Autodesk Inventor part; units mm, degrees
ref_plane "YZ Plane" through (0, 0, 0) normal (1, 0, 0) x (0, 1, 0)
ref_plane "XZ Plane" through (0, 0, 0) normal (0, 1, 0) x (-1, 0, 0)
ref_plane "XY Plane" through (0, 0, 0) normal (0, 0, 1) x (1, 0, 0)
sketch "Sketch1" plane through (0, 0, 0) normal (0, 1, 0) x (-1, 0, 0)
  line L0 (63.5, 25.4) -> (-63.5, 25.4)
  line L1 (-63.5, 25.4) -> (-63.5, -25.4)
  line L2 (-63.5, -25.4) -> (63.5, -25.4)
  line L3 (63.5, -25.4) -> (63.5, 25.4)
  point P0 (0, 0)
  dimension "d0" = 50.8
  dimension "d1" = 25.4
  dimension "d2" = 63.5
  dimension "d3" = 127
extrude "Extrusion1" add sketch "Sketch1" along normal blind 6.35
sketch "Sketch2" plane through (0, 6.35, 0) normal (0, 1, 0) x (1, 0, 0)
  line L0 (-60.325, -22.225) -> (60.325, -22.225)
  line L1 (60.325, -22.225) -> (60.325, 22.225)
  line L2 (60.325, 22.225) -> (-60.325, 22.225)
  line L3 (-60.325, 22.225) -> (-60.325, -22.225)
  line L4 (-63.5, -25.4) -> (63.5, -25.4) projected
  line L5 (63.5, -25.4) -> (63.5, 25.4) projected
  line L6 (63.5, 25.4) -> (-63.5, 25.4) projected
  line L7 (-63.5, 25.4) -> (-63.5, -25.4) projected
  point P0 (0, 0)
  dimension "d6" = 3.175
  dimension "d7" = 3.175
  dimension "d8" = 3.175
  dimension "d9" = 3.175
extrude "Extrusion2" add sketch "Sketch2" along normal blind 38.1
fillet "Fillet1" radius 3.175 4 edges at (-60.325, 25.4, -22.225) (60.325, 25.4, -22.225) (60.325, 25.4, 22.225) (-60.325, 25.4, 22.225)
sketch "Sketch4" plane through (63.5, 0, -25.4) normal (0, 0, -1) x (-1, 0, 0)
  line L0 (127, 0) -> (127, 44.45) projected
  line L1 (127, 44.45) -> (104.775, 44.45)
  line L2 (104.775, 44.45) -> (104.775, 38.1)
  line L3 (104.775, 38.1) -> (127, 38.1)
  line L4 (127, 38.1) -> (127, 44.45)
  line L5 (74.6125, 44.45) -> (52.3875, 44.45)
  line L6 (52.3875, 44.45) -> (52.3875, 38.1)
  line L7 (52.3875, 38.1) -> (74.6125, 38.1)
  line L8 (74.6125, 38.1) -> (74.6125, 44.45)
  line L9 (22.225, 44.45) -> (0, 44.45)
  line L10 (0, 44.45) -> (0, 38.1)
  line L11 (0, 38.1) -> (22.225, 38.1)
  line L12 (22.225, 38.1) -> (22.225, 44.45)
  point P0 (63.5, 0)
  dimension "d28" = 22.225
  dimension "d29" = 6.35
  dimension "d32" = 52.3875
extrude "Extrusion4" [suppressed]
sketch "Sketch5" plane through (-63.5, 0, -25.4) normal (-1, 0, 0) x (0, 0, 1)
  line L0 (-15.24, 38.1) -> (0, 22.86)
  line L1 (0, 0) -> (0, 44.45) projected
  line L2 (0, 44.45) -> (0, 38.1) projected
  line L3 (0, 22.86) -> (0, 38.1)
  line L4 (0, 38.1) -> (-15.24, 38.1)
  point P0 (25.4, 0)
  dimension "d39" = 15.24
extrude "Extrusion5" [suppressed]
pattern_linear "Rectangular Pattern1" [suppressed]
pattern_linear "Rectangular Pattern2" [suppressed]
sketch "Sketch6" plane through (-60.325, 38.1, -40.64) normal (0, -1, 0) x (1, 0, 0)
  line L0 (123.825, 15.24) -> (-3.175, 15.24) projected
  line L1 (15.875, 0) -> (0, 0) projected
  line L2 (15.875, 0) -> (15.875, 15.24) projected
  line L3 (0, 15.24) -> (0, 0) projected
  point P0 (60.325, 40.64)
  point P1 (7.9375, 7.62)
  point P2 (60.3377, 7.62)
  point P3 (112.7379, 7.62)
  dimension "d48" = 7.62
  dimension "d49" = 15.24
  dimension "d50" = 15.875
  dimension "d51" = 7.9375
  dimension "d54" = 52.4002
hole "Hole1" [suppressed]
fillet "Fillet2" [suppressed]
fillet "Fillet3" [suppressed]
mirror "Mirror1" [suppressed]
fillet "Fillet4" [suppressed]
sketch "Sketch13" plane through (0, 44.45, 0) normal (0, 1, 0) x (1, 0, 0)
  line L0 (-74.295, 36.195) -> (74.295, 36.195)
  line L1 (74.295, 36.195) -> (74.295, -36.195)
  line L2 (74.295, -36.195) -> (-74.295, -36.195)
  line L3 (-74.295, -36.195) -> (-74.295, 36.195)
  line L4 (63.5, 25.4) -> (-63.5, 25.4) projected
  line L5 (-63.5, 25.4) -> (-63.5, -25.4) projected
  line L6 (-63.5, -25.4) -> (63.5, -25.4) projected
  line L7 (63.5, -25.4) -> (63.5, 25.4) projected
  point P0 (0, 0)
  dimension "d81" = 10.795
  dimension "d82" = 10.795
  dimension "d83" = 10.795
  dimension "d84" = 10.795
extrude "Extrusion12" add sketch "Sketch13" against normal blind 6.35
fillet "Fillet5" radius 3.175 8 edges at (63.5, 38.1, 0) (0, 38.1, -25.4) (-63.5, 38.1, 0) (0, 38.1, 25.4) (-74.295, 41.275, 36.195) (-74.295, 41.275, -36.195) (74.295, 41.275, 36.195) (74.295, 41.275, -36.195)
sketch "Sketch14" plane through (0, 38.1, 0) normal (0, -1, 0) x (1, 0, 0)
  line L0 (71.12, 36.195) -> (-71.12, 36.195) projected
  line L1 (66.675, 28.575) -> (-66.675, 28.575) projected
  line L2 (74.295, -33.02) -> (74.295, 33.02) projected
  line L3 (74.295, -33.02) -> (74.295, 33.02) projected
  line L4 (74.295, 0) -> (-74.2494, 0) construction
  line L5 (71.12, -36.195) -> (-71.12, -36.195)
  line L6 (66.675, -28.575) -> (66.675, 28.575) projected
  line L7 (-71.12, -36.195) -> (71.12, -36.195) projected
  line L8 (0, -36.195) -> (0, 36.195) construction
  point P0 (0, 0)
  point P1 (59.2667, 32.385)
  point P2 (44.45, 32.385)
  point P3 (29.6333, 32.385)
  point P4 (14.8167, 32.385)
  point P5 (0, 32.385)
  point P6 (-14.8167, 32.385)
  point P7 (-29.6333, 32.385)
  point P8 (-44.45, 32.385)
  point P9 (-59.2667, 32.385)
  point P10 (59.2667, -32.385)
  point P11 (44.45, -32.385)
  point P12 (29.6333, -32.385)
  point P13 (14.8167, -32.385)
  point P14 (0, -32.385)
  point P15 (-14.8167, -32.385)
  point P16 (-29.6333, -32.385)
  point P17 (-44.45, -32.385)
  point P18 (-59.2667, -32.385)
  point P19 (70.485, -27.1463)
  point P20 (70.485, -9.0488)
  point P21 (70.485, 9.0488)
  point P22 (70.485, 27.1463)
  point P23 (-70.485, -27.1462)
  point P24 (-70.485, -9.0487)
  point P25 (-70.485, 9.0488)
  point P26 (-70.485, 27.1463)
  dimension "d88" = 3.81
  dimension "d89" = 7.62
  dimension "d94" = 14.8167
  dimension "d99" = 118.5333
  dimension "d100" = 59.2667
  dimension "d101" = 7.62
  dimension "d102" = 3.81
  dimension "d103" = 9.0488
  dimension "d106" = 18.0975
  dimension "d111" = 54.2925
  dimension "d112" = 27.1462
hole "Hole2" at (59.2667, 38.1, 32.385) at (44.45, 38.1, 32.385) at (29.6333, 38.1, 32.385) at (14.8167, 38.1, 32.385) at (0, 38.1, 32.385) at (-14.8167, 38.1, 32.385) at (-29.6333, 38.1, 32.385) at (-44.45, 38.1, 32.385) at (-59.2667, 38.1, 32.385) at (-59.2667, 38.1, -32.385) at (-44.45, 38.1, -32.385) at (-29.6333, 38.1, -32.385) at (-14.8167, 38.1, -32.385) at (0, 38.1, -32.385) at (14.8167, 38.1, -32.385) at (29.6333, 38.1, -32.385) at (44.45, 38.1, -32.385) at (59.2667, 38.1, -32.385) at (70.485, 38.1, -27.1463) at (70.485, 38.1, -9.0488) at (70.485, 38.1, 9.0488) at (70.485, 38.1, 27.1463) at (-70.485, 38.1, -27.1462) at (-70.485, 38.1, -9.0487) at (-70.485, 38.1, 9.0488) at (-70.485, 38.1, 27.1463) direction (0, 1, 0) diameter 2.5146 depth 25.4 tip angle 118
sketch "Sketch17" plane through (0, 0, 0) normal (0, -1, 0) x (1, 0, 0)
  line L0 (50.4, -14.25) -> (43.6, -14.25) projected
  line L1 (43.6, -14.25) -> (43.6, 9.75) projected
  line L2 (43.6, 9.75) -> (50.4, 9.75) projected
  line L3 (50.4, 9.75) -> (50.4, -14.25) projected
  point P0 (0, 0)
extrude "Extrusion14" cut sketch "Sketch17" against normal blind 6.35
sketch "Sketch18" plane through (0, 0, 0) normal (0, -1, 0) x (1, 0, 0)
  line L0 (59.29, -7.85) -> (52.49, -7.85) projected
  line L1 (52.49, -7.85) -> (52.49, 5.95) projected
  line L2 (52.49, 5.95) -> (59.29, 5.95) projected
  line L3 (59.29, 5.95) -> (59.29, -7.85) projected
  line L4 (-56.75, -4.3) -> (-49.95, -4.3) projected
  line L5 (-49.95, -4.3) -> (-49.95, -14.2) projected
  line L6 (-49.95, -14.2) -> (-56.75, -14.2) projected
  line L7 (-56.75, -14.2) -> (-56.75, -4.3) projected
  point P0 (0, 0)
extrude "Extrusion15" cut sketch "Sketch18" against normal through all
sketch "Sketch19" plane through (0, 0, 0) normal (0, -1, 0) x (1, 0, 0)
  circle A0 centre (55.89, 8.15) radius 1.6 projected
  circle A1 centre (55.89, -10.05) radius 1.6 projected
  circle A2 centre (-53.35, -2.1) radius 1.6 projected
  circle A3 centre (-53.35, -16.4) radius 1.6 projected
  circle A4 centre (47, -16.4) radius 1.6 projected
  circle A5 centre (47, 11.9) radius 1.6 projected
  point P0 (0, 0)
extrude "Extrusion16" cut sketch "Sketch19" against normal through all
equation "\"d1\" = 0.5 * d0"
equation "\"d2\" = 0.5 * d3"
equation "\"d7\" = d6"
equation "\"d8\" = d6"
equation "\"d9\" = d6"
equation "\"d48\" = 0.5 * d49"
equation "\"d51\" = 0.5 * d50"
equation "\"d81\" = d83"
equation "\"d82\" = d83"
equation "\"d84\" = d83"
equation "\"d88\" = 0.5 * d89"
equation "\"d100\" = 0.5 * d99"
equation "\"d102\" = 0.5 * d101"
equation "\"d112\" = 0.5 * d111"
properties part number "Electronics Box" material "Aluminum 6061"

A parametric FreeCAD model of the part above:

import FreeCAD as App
import Part
import Sketcher
Q = App.Units.Quantity


def edges_at(feature, points):
    """Names of the edges that pass closest to the given points."""
    edges = feature.Shape.Edges
    near = lambda p: min(range(len(edges)), key=lambda i: edges[i].distToShape(Part.Vertex(*p))[0])
    return sorted({f"Edge{near(p) + 1}" for p in points})


def add_polygon(sketch, points):
    """Adds a closed chain of lines whose ends are joined by coincident constraints."""
    first, n = sketch.GeometryCount, len(points)
    for a, b in zip(points, points[1:] + points[:1]):
        sketch.addGeometry(Part.LineSegment(App.Vector(*a, 0), App.Vector(*b, 0)), False)
    for i in range(n):
        sketch.addConstraint(Sketcher.Constraint("Coincident", first + i, 2, first + (i + 1) % n, 1))

doc = App.newDocument("Part")
body = doc.addObject("PartDesign::Body", "Body")

# Sketch on XZ plane
sketch1 = body.newObject("Sketcher::SketchObject", "Sketch")
sketch1.AttachmentSupport = (doc.getObject("XZ_Plane"), [""])
sketch1.MapMode = "FlatFace"
add_polygon(sketch1, [(-64, -25), (-64, 25), (64, 25), (64, -25)])  # lines 0-3
sketch1.addConstraint([
    Sketcher.Constraint("Vertical", 0),
    Sketcher.Constraint("Horizontal", 1),
    Sketcher.Constraint("Vertical", 2),
    Sketcher.Constraint("Horizontal", 3),
    Sketcher.Constraint("Symmetric", 0, 2, 2, 2, -1, 1),
    Sketcher.Constraint("DistanceX", 1, 1, 1, 2, Q("5 in")),
    Sketcher.Constraint("DistanceY", 0, 1, 0, 2, Q("2 in")),
])
pad1 = body.newObject("PartDesign::Pad", "Pad")
pad1.Profile = sketch1
pad1.Length = Q("0.25 in")
pad1.Reversed = True

# Sketch on XZ plane
sketch2 = body.newObject("Sketcher::SketchObject", "Sketch001")
sketch2.AttachmentSupport = (doc.getObject("XZ_Plane"), [""])
sketch2.MapMode = "FlatFace"
sketch2.AttachmentOffset = App.Placement(App.Vector(0, 0, -0.25 * 25.4), App.Rotation())
add_polygon(sketch2, [(-64, -25), (-64, 25), (64, 25), (64, -25)])  # lines 0-3
add_polygon(sketch2, [(60, 22), (-60, 22), (-60, -22), (60, -22)])  # lines 4-7
sketch2.addConstraint([
    Sketcher.Constraint("Vertical", 0),
    Sketcher.Constraint("Horizontal", 1),
    Sketcher.Constraint("Vertical", 2),
    Sketcher.Constraint("Horizontal", 3),
    Sketcher.Constraint("Horizontal", 4),
    Sketcher.Constraint("Vertical", 5),
    Sketcher.Constraint("Horizontal", 6),
    Sketcher.Constraint("Vertical", 7),
    Sketcher.Constraint("Symmetric", 0, 2, 2, 2, -1, 1),
    Sketcher.Constraint("Symmetric", 4, 2, 6, 2, -1, 1),
    Sketcher.Constraint("DistanceX", 1, 1, 1, 2, Q("5 in")),
    Sketcher.Constraint("DistanceY", 0, 1, 0, 2, Q("2 in")),
    Sketcher.Constraint("DistanceX", 0, 2, 4, 2, Q("0.125 in")),
    Sketcher.Constraint("DistanceY", 4, 2, 0, 2, Q("0.125 in")),
])
pad2 = body.newObject("PartDesign::Pad", "Pad001")
pad2.Profile = sketch2
pad2.Length = Q("1.5 in")
pad2.Reversed = True
doc.recompute()

fillet = body.newObject("PartDesign::Fillet", "Fillet")
fillet.Base = (pad2, edges_at(pad2, [
    (-60.325, 25.4, -22.225),
    (60.325, 25.4, -22.225),
    (60.325, 25.4, 22.225),
    (-60.325, 25.4, 22.225),
]))
fillet.Radius = Q("0.125 in")

# Sketch on XZ plane
sketch3 = body.newObject("Sketcher::SketchObject", "Sketch002")
sketch3.AttachmentSupport = (doc.getObject("XZ_Plane"), [""])
sketch3.MapMode = "FlatFace"
sketch3.AttachmentOffset = App.Placement(App.Vector(0, 0, -1.75 * 25.4), App.Rotation())
add_polygon(sketch3, [(74, -36), (-74, -36), (-74, 36), (74, 36)])  # lines 0-3
add_polygon(sketch3, [(-64, -25), (64, -25), (64, 25), (-64, 25)])  # lines 4-7
sketch3.addConstraint([
    Sketcher.Constraint("Horizontal", 0),
    Sketcher.Constraint("Vertical", 1),
    Sketcher.Constraint("Horizontal", 2),
    Sketcher.Constraint("Vertical", 3),
    Sketcher.Constraint("Horizontal", 4),
    Sketcher.Constraint("Vertical", 5),
    Sketcher.Constraint("Horizontal", 6),
    Sketcher.Constraint("Vertical", 7),
    Sketcher.Constraint("Symmetric", 0, 2, 2, 2, -1, 1),
    Sketcher.Constraint("Symmetric", 4, 2, 6, 2, -1, 1),
    Sketcher.Constraint("DistanceX", 4, 1, 4, 2, Q("5 in")),
    Sketcher.Constraint("DistanceY", 5, 1, 5, 2, Q("2 in")),
    Sketcher.Constraint("DistanceX", 4, 2, 3, 2, Q("0.425 in")),
    Sketcher.Constraint("DistanceY", 3, 2, 4, 2, Q("0.425 in")),
])
pad3 = body.newObject("PartDesign::Pad", "Pad002")
pad3.Profile = sketch3
pad3.Length = Q("0.25 in")
doc.recompute()

fillet2 = body.newObject("PartDesign::Fillet", "Fillet001")
fillet2.Base = (pad3, edges_at(pad3, [
    (63.5, 38.1, 0),
    (0, 38.1, -25.4),
    (-63.5, 38.1, 0),
    (0, 38.1, 25.4),
    (-74.295, 41.275, 36.195),
    (-74.295, 41.275, -36.195),
    (74.295, 41.275, 36.195),
    (74.295, 41.275, -36.195),
]))
fillet2.Radius = Q("0.125 in")

# Sketch on XZ plane
sketch4 = body.newObject("Sketcher::SketchObject", "Sketch003")
sketch4.AttachmentSupport = (doc.getObject("XZ_Plane"), [""])
sketch4.MapMode = "FlatFace"
sketch4.AttachmentOffset = App.Placement(App.Vector(0, 0, -1.5 * 25.4), App.Rotation())
sketch4.addGeometry([
    Part.Circle(App.Vector(59.3, 32.4, 0), App.Vector(0, 0, 1), 1.3),  # 0
    Part.Circle(App.Vector(44.5, 32.4, 0), App.Vector(0, 0, 1), 1.3),  # 1
    Part.Circle(App.Vector(29.6, 32.4, 0), App.Vector(0, 0, 1), 1.3),  # 2
    Part.Circle(App.Vector(14.8, 32.4, 0), App.Vector(0, 0, 1), 1.3),  # 3
    Part.Circle(App.Vector(0, 32.4, 0), App.Vector(0, 0, 1), 1.3),  # 4
    Part.Circle(App.Vector(-14.8, 32.4, 0), App.Vector(0, 0, 1), 1.3),  # 5
    Part.Circle(App.Vector(-29.6, 32.4, 0), App.Vector(0, 0, 1), 1.3),  # 6
    Part.Circle(App.Vector(-44.5, 32.4, 0), App.Vector(0, 0, 1), 1.3),  # 7
    Part.Circle(App.Vector(-59.3, 32.4, 0), App.Vector(0, 0, 1), 1.3),  # 8
    Part.Circle(App.Vector(-59.3, -32.4, 0), App.Vector(0, 0, 1), 1.3),  # 9
    Part.Circle(App.Vector(-44.5, -32.4, 0), App.Vector(0, 0, 1), 1.3),  # 10
    Part.Circle(App.Vector(-29.6, -32.4, 0), App.Vector(0, 0, 1), 1.3),  # 11
    Part.Circle(App.Vector(-14.8, -32.4, 0), App.Vector(0, 0, 1), 1.3),  # 12
    Part.Circle(App.Vector(0, -32.4, 0), App.Vector(0, 0, 1), 1.3),  # 13
    Part.Circle(App.Vector(14.8, -32.4, 0), App.Vector(0, 0, 1), 1.3),  # 14
    Part.Circle(App.Vector(29.6, -32.4, 0), App.Vector(0, 0, 1), 1.3),  # 15
    Part.Circle(App.Vector(44.5, -32.4, 0), App.Vector(0, 0, 1), 1.3),  # 16
    Part.Circle(App.Vector(59.3, -32.4, 0), App.Vector(0, 0, 1), 1.3),  # 17
    Part.Circle(App.Vector(70.5, -27.1, 0), App.Vector(0, 0, 1), 1.3),  # 18
    Part.Circle(App.Vector(70.5, -9, 0), App.Vector(0, 0, 1), 1.3),  # 19
    Part.Circle(App.Vector(70.5, 9, 0), App.Vector(0, 0, 1), 1.3),  # 20
    Part.Circle(App.Vector(70.5, 27.1, 0), App.Vector(0, 0, 1), 1.3),  # 21
    Part.Circle(App.Vector(-70.5, -27.1, 0), App.Vector(0, 0, 1), 1.3),  # 22
    Part.Circle(App.Vector(-70.5, -9, 0), App.Vector(0, 0, 1), 1.3),  # 23
    Part.Circle(App.Vector(-70.5, 9, 0), App.Vector(0, 0, 1), 1.3),  # 24
    Part.Circle(App.Vector(-70.5, 27.1, 0), App.Vector(0, 0, 1), 1.3),  # 25
], False)
sketch4.addConstraint([
    Sketcher.Constraint("Equal", 0, 1),
    Sketcher.Constraint("Equal", 1, 2),
    Sketcher.Constraint("Equal", 2, 3),
    Sketcher.Constraint("Equal", 3, 4),
    Sketcher.Constraint("Equal", 4, 5),
    Sketcher.Constraint("Equal", 5, 6),
    Sketcher.Constraint("Equal", 6, 7),
    Sketcher.Constraint("Equal", 7, 8),
    Sketcher.Constraint("Equal", 8, 9),
    Sketcher.Constraint("Equal", 9, 10),
    Sketcher.Constraint("Equal", 10, 11),
    Sketcher.Constraint("Equal", 11, 12),
    Sketcher.Constraint("Equal", 12, 13),
    Sketcher.Constraint("Equal", 13, 14),
    Sketcher.Constraint("Equal", 14, 15),
    Sketcher.Constraint("Equal", 15, 16),
    Sketcher.Constraint("Equal", 16, 17),
    Sketcher.Constraint("Equal", 17, 18),
    Sketcher.Constraint("Equal", 18, 19),
    Sketcher.Constraint("Equal", 19, 20),
    Sketcher.Constraint("Equal", 20, 21),
    Sketcher.Constraint("Equal", 21, 22),
    Sketcher.Constraint("Equal", 22, 23),
    Sketcher.Constraint("Equal", 23, 24),
    Sketcher.Constraint("Equal", 24, 25),
    Sketcher.Constraint("Symmetric", 0, 3, 9, 3, -1, 1),
    Sketcher.Constraint("Symmetric", 1, 3, 10, 3, -1, 1),
    Sketcher.Constraint("Symmetric", 2, 3, 11, 3, -1, 1),
    Sketcher.Constraint("Symmetric", 3, 3, 12, 3, -1, 1),
    Sketcher.Constraint("Symmetric", 4, 3, 13, 3, -1, 1),
    Sketcher.Constraint("Symmetric", 5, 3, 14, 3, -1, 1),
    Sketcher.Constraint("Symmetric", 6, 3, 15, 3, -1, 1),
    Sketcher.Constraint("Symmetric", 7, 3, 16, 3, -1, 1),
    Sketcher.Constraint("Symmetric", 8, 3, 17, 3, -1, 1),
    Sketcher.Constraint("Symmetric", 21, 3, 22, 3, -1, 1),
    Sketcher.Constraint("Symmetric", 20, 3, 23, 3, -1, 1),
    Sketcher.Constraint("Symmetric", 19, 3, 24, 3, -1, 1),
    Sketcher.Constraint("Symmetric", 18, 3, 25, 3, -1, 1),
    Sketcher.Constraint("Symmetric", 3, 3, 5, 3, -2),
    Sketcher.Constraint("Symmetric", 2, 3, 6, 3, -2),
    Sketcher.Constraint("Symmetric", 1, 3, 7, 3, -2),
    Sketcher.Constraint("Symmetric", 0, 3, 8, 3, -2),
    Sketcher.Constraint("Symmetric", 18, 3, 22, 3, -2),
    Sketcher.Constraint("Symmetric", 19, 3, 23, 3, -2),
    Sketcher.Constraint("PointOnObject", 4, 3, -2),
    Sketcher.Constraint("Horizontal", 0, 3, 1, 3),
    Sketcher.Constraint("Horizontal", 1, 3, 2, 3),
    Sketcher.Constraint("Horizontal", 2, 3, 3, 3),
    Sketcher.Constraint("Horizontal", 3, 3, 4, 3),
    Sketcher.Constraint("Vertical", 18, 3, 19, 3),
    Sketcher.Constraint("Diameter", 0, Q("0.099 in")),
    Sketcher.Constraint("DistanceX", -1, 1, 1, 3, Q("1.75 in")),
    Sketcher.Constraint("DistanceX", 3, 3, 0, 3, Q("1.75 in")),
    Sketcher.Constraint("DistanceX", 5, 3, 2, 3, Q("1.75 in")),
    Sketcher.Constraint("DistanceY", 9, 3, 8, 3, Q("2.55 in")),
    Sketcher.Constraint("DistanceX", -1, 1, 18, 3, Q("2.775 in")),
    Sketcher.Constraint("DistanceY", 18, 3, 0, 3, Q("2.343752 in")),
    Sketcher.Constraint("DistanceY", 18, 3, 20, 3, Q("1.425 in")),
    Sketcher.Constraint("DistanceX", -1, 1, 0, 3, 59.2667),
])
doc.recompute()
hole = body.newObject("PartDesign::Hole", "Hole")
hole.Profile = sketch4
hole.ThreadType = "None"
hole.Diameter = Q("0.099 in")
hole.DepthType = "Dimension"
hole.Depth = Q("1 in")
hole.DrillPoint = "Angled"
hole.DrillPointAngle = 118

# Sketch on XZ plane
sketch5 = body.newObject("Sketcher::SketchObject", "Sketch004")
sketch5.AttachmentSupport = (doc.getObject("XZ_Plane"), [""])
sketch5.MapMode = "FlatFace"
add_polygon(sketch5, [(44, -14), (50, -14), (50, 10), (44, 10)])  # lines 0-3
sketch5.addConstraint([
    Sketcher.Constraint("Horizontal", 0),
    Sketcher.Constraint("Vertical", 1),
    Sketcher.Constraint("Horizontal", 2),
    Sketcher.Constraint("Vertical", 3),
    Sketcher.Constraint("DistanceX", 0, 1, 0, 2, 6.8),
    Sketcher.Constraint("DistanceY", 1, 1, 1, 2, 24.0),
    Sketcher.Constraint("DistanceX", -1, 1, 0, 2, 50.4),
    Sketcher.Constraint("DistanceY", 0, 2, -1, 1, 14.25),
])
pocket1 = body.newObject("PartDesign::Pocket", "Pocket")
pocket1.Profile = sketch5
pocket1.Length = Q("0.25 in")

# Sketch on XZ plane
sketch6 = body.newObject("Sketcher::SketchObject", "Sketch005")
sketch6.AttachmentSupport = (doc.getObject("XZ_Plane"), [""])
sketch6.MapMode = "FlatFace"
add_polygon(sketch6, [(52, -8), (59, -8), (59, 6), (52, 6)])  # lines 0-3
add_polygon(sketch6, [(-50, -4), (-57, -4), (-57, -14), (-50, -14)])  # lines 4-7
sketch6.addConstraint([
    Sketcher.Constraint("Horizontal", 0),
    Sketcher.Constraint("Vertical", 1),
    Sketcher.Constraint("Horizontal", 2),
    Sketcher.Constraint("Vertical", 3),
    Sketcher.Constraint("Horizontal", 4),
    Sketcher.Constraint("Vertical", 5),
    Sketcher.Constraint("Horizontal", 6),
    Sketcher.Constraint("Vertical", 7),
    Sketcher.Constraint("Equal", 2, 4),
    Sketcher.Constraint("DistanceY", 5, 2, 3, 2, Q("0.25 in")),
    Sketcher.Constraint("DistanceY", 1, 1, 1, 2, Q("0.5433 in")),
    Sketcher.Constraint("DistanceX", 0, 1, 0, 2, 6.8),
    Sketcher.Constraint("DistanceY", 5, 2, 5, 1, 9.9),
    Sketcher.Constraint("DistanceY", 4, 2, -1, 1, Q("0.1693 in")),
    Sketcher.Constraint("DistanceX", 4, 2, 0, 2, Q("4.5685 in")),
    Sketcher.Constraint("DistanceX", -1, 1, 0, 2, 59.29),
])
pocket2 = body.newObject("PartDesign::Pocket", "Pocket001")
pocket2.Profile = sketch6
pocket2.Type = "ThroughAll"

# Sketch on XZ plane
sketch7 = body.newObject("Sketcher::SketchObject", "Sketch006")
sketch7.AttachmentSupport = (doc.getObject("XZ_Plane"), [""])
sketch7.MapMode = "FlatFace"
sketch7.addGeometry([
    Part.Circle(App.Vector(55.9, 8.2, 0), App.Vector(0, 0, 1), 1.6),  # 0
    Part.Circle(App.Vector(55.9, -10.1, 0), App.Vector(0, 0, 1), 1.6),  # 1
    Part.Circle(App.Vector(-53.4, -2.1, 0), App.Vector(0, 0, 1), 1.6),  # 2
    Part.Circle(App.Vector(-53.4, -16.4, 0), App.Vector(0, 0, 1), 1.6),  # 3
    Part.Circle(App.Vector(47, -16.4, 0), App.Vector(0, 0, 1), 1.6),  # 4
    Part.Circle(App.Vector(47, 11.9, 0), App.Vector(0, 0, 1), 1.6),  # 5
], False)
sketch7.addConstraint([
    Sketcher.Constraint("Equal", 0, 1),
    Sketcher.Constraint("Equal", 1, 2),
    Sketcher.Constraint("Equal", 2, 3),
    Sketcher.Constraint("Equal", 3, 4),
    Sketcher.Constraint("Equal", 4, 5),
    Sketcher.Constraint("Horizontal", 3, 3, 4, 3),
    Sketcher.Constraint("Vertical", 0, 3, 1, 3),
    Sketcher.Constraint("Vertical", 2, 3, 3, 3),
    Sketcher.Constraint("Vertical", 4, 3, 5, 3),
    Sketcher.Constraint("Diameter", 0, 3.2),
    Sketcher.Constraint("DistanceY", 3, 3, 1, 3, Q("0.25 in")),
    Sketcher.Constraint("DistanceX", 4, 3, 1, 3, Q("0.35 in")),
    Sketcher.Constraint("DistanceY", 1, 3, 2, 3, Q("0.313 in")),
    Sketcher.Constraint("DistanceX", -1, 1, 0, 3, Q("2.2004 in")),
    Sketcher.Constraint("DistanceX", 2, 3, -1, 1, Q("2.1004 in")),
    Sketcher.Constraint("DistanceY", -1, 1, 5, 3, Q("0.4685 in")),
    Sketcher.Constraint("DistanceY", -1, 1, 0, 3, 8.15),
    Sketcher.Constraint("DistanceY", 1, 3, -1, 1, 10.05),
])
pocket3 = body.newObject("PartDesign::Pocket", "Pocket002")
pocket3.Profile = sketch7
pocket3.Type = "ThroughAll"

doc.recompute()
